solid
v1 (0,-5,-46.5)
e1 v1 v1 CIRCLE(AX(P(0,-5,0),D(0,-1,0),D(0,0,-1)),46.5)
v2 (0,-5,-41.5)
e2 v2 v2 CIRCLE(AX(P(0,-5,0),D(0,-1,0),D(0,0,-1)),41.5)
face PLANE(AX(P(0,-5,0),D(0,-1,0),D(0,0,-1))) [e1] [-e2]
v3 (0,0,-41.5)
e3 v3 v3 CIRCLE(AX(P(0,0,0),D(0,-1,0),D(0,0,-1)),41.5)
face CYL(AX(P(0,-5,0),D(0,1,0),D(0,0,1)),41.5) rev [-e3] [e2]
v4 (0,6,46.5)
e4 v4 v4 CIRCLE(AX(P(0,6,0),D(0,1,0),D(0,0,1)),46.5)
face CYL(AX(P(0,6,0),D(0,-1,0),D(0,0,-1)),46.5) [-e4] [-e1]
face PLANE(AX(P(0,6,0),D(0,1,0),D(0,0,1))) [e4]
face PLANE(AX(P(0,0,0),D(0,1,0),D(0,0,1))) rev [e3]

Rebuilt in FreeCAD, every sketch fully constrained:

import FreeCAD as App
import Part
import Sketcher
from FreeCAD import Vector

doc = App.newDocument("Part")
body = doc.addObject("PartDesign::Body", "Body")

# Sketch on XZ plane
sketch1 = doc.addObject("Sketcher::SketchObject", "Sketch")
body.addObject(sketch1)
sketch1.AttachmentSupport = (doc.XZ_Plane, [""])
sketch1.MapMode = "FlatFace"
sketch1.addGeometry(Part.Circle(Vector(0, 0, 0), Vector(0, 0, 1), 46.5), False)
sketch1.addConstraint(Sketcher.Constraint("Coincident", 0, 3, -1, 1))
sketch1.addConstraint(Sketcher.Constraint("Diameter", 0, 93.0))
pad1 = doc.addObject("PartDesign::Pad", "Pad")
body.addObject(pad1)
pad1.Profile = sketch1
pad1.Length = 6
pad1.Reversed = True

# Sketch on XZ plane
sketch2 = doc.addObject("Sketcher::SketchObject", "Sketch001")
body.addObject(sketch2)
sketch2.AttachmentSupport = (doc.XZ_Plane, [""])
sketch2.MapMode = "FlatFace"
sketch2.AttachmentOffset = App.Placement(Vector(0, 0, 5), App.Rotation())
sketch2.addGeometry(Part.Circle(Vector(0, 0, 0), Vector(0, 0, 1), 46.5), False)
sketch2.addGeometry(Part.Circle(Vector(0, 0, 0), Vector(0, 0, 1), 41.5), False)
sketch2.addConstraint(Sketcher.Constraint("Coincident", 0, 3, -1, 1))
sketch2.addConstraint(Sketcher.Constraint("Coincident", 1, 3, -1, 1))
sketch2.addConstraint(Sketcher.Constraint("Diameter", 0, 93.0))
sketch2.addConstraint(Sketcher.Constraint("Diameter", 1, 83.0))
pad2 = doc.addObject("PartDesign::Pad", "Pad001")
body.addObject(pad2)
pad2.Profile = sketch2
pad2.Length = 5
pad2.Reversed = True

doc.recompute()
